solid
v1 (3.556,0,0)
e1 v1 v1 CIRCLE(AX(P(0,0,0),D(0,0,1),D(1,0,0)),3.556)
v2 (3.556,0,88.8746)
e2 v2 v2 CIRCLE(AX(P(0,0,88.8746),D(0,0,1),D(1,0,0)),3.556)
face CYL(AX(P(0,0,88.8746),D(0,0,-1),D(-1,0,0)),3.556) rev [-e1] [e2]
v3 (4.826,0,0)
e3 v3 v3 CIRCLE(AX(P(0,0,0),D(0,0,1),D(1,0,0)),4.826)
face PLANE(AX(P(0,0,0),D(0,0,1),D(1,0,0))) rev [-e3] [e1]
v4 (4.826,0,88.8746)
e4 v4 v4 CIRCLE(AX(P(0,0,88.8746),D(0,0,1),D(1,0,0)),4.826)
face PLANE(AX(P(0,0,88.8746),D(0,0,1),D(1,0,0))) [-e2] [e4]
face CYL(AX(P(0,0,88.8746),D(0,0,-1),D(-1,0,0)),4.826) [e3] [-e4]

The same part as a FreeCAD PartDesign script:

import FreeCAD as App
import Part
import Sketcher
from FreeCAD import Vector
Q = App.Units.Quantity

doc = App.newDocument("Part")
body = doc.addObject("PartDesign::Body", "Body")

sketch1 = body.newObject("Sketcher::SketchObject", "Sketch")
sketch1.AttachmentSupport = (doc.getObject("XY_Plane"), [""])
sketch1.MapMode = "FlatFace"
sketch1.addGeometry([
    Part.Circle(Vector(0, 0, 0), Vector(0, 0, 1), 4.826),
    Part.Circle(Vector(0, 0, 0), Vector(0, 0, 1), 3.556),
], False)
sketch1.addConstraint([
    Sketcher.Constraint("Coincident", 0, 3, -1, 1),
    Sketcher.Constraint("Coincident", 1, 3, -1, 1),
    Sketcher.Constraint("Diameter", 0, Q("0.38 in")),
    Sketcher.Constraint("Diameter", 1, Q("0.28 in")),
])
pad1 = body.newObject("PartDesign::Pad", "Pad")
pad1.Profile = sketch1
pad1.Length = Q("3.499 in")

doc.recompute()
